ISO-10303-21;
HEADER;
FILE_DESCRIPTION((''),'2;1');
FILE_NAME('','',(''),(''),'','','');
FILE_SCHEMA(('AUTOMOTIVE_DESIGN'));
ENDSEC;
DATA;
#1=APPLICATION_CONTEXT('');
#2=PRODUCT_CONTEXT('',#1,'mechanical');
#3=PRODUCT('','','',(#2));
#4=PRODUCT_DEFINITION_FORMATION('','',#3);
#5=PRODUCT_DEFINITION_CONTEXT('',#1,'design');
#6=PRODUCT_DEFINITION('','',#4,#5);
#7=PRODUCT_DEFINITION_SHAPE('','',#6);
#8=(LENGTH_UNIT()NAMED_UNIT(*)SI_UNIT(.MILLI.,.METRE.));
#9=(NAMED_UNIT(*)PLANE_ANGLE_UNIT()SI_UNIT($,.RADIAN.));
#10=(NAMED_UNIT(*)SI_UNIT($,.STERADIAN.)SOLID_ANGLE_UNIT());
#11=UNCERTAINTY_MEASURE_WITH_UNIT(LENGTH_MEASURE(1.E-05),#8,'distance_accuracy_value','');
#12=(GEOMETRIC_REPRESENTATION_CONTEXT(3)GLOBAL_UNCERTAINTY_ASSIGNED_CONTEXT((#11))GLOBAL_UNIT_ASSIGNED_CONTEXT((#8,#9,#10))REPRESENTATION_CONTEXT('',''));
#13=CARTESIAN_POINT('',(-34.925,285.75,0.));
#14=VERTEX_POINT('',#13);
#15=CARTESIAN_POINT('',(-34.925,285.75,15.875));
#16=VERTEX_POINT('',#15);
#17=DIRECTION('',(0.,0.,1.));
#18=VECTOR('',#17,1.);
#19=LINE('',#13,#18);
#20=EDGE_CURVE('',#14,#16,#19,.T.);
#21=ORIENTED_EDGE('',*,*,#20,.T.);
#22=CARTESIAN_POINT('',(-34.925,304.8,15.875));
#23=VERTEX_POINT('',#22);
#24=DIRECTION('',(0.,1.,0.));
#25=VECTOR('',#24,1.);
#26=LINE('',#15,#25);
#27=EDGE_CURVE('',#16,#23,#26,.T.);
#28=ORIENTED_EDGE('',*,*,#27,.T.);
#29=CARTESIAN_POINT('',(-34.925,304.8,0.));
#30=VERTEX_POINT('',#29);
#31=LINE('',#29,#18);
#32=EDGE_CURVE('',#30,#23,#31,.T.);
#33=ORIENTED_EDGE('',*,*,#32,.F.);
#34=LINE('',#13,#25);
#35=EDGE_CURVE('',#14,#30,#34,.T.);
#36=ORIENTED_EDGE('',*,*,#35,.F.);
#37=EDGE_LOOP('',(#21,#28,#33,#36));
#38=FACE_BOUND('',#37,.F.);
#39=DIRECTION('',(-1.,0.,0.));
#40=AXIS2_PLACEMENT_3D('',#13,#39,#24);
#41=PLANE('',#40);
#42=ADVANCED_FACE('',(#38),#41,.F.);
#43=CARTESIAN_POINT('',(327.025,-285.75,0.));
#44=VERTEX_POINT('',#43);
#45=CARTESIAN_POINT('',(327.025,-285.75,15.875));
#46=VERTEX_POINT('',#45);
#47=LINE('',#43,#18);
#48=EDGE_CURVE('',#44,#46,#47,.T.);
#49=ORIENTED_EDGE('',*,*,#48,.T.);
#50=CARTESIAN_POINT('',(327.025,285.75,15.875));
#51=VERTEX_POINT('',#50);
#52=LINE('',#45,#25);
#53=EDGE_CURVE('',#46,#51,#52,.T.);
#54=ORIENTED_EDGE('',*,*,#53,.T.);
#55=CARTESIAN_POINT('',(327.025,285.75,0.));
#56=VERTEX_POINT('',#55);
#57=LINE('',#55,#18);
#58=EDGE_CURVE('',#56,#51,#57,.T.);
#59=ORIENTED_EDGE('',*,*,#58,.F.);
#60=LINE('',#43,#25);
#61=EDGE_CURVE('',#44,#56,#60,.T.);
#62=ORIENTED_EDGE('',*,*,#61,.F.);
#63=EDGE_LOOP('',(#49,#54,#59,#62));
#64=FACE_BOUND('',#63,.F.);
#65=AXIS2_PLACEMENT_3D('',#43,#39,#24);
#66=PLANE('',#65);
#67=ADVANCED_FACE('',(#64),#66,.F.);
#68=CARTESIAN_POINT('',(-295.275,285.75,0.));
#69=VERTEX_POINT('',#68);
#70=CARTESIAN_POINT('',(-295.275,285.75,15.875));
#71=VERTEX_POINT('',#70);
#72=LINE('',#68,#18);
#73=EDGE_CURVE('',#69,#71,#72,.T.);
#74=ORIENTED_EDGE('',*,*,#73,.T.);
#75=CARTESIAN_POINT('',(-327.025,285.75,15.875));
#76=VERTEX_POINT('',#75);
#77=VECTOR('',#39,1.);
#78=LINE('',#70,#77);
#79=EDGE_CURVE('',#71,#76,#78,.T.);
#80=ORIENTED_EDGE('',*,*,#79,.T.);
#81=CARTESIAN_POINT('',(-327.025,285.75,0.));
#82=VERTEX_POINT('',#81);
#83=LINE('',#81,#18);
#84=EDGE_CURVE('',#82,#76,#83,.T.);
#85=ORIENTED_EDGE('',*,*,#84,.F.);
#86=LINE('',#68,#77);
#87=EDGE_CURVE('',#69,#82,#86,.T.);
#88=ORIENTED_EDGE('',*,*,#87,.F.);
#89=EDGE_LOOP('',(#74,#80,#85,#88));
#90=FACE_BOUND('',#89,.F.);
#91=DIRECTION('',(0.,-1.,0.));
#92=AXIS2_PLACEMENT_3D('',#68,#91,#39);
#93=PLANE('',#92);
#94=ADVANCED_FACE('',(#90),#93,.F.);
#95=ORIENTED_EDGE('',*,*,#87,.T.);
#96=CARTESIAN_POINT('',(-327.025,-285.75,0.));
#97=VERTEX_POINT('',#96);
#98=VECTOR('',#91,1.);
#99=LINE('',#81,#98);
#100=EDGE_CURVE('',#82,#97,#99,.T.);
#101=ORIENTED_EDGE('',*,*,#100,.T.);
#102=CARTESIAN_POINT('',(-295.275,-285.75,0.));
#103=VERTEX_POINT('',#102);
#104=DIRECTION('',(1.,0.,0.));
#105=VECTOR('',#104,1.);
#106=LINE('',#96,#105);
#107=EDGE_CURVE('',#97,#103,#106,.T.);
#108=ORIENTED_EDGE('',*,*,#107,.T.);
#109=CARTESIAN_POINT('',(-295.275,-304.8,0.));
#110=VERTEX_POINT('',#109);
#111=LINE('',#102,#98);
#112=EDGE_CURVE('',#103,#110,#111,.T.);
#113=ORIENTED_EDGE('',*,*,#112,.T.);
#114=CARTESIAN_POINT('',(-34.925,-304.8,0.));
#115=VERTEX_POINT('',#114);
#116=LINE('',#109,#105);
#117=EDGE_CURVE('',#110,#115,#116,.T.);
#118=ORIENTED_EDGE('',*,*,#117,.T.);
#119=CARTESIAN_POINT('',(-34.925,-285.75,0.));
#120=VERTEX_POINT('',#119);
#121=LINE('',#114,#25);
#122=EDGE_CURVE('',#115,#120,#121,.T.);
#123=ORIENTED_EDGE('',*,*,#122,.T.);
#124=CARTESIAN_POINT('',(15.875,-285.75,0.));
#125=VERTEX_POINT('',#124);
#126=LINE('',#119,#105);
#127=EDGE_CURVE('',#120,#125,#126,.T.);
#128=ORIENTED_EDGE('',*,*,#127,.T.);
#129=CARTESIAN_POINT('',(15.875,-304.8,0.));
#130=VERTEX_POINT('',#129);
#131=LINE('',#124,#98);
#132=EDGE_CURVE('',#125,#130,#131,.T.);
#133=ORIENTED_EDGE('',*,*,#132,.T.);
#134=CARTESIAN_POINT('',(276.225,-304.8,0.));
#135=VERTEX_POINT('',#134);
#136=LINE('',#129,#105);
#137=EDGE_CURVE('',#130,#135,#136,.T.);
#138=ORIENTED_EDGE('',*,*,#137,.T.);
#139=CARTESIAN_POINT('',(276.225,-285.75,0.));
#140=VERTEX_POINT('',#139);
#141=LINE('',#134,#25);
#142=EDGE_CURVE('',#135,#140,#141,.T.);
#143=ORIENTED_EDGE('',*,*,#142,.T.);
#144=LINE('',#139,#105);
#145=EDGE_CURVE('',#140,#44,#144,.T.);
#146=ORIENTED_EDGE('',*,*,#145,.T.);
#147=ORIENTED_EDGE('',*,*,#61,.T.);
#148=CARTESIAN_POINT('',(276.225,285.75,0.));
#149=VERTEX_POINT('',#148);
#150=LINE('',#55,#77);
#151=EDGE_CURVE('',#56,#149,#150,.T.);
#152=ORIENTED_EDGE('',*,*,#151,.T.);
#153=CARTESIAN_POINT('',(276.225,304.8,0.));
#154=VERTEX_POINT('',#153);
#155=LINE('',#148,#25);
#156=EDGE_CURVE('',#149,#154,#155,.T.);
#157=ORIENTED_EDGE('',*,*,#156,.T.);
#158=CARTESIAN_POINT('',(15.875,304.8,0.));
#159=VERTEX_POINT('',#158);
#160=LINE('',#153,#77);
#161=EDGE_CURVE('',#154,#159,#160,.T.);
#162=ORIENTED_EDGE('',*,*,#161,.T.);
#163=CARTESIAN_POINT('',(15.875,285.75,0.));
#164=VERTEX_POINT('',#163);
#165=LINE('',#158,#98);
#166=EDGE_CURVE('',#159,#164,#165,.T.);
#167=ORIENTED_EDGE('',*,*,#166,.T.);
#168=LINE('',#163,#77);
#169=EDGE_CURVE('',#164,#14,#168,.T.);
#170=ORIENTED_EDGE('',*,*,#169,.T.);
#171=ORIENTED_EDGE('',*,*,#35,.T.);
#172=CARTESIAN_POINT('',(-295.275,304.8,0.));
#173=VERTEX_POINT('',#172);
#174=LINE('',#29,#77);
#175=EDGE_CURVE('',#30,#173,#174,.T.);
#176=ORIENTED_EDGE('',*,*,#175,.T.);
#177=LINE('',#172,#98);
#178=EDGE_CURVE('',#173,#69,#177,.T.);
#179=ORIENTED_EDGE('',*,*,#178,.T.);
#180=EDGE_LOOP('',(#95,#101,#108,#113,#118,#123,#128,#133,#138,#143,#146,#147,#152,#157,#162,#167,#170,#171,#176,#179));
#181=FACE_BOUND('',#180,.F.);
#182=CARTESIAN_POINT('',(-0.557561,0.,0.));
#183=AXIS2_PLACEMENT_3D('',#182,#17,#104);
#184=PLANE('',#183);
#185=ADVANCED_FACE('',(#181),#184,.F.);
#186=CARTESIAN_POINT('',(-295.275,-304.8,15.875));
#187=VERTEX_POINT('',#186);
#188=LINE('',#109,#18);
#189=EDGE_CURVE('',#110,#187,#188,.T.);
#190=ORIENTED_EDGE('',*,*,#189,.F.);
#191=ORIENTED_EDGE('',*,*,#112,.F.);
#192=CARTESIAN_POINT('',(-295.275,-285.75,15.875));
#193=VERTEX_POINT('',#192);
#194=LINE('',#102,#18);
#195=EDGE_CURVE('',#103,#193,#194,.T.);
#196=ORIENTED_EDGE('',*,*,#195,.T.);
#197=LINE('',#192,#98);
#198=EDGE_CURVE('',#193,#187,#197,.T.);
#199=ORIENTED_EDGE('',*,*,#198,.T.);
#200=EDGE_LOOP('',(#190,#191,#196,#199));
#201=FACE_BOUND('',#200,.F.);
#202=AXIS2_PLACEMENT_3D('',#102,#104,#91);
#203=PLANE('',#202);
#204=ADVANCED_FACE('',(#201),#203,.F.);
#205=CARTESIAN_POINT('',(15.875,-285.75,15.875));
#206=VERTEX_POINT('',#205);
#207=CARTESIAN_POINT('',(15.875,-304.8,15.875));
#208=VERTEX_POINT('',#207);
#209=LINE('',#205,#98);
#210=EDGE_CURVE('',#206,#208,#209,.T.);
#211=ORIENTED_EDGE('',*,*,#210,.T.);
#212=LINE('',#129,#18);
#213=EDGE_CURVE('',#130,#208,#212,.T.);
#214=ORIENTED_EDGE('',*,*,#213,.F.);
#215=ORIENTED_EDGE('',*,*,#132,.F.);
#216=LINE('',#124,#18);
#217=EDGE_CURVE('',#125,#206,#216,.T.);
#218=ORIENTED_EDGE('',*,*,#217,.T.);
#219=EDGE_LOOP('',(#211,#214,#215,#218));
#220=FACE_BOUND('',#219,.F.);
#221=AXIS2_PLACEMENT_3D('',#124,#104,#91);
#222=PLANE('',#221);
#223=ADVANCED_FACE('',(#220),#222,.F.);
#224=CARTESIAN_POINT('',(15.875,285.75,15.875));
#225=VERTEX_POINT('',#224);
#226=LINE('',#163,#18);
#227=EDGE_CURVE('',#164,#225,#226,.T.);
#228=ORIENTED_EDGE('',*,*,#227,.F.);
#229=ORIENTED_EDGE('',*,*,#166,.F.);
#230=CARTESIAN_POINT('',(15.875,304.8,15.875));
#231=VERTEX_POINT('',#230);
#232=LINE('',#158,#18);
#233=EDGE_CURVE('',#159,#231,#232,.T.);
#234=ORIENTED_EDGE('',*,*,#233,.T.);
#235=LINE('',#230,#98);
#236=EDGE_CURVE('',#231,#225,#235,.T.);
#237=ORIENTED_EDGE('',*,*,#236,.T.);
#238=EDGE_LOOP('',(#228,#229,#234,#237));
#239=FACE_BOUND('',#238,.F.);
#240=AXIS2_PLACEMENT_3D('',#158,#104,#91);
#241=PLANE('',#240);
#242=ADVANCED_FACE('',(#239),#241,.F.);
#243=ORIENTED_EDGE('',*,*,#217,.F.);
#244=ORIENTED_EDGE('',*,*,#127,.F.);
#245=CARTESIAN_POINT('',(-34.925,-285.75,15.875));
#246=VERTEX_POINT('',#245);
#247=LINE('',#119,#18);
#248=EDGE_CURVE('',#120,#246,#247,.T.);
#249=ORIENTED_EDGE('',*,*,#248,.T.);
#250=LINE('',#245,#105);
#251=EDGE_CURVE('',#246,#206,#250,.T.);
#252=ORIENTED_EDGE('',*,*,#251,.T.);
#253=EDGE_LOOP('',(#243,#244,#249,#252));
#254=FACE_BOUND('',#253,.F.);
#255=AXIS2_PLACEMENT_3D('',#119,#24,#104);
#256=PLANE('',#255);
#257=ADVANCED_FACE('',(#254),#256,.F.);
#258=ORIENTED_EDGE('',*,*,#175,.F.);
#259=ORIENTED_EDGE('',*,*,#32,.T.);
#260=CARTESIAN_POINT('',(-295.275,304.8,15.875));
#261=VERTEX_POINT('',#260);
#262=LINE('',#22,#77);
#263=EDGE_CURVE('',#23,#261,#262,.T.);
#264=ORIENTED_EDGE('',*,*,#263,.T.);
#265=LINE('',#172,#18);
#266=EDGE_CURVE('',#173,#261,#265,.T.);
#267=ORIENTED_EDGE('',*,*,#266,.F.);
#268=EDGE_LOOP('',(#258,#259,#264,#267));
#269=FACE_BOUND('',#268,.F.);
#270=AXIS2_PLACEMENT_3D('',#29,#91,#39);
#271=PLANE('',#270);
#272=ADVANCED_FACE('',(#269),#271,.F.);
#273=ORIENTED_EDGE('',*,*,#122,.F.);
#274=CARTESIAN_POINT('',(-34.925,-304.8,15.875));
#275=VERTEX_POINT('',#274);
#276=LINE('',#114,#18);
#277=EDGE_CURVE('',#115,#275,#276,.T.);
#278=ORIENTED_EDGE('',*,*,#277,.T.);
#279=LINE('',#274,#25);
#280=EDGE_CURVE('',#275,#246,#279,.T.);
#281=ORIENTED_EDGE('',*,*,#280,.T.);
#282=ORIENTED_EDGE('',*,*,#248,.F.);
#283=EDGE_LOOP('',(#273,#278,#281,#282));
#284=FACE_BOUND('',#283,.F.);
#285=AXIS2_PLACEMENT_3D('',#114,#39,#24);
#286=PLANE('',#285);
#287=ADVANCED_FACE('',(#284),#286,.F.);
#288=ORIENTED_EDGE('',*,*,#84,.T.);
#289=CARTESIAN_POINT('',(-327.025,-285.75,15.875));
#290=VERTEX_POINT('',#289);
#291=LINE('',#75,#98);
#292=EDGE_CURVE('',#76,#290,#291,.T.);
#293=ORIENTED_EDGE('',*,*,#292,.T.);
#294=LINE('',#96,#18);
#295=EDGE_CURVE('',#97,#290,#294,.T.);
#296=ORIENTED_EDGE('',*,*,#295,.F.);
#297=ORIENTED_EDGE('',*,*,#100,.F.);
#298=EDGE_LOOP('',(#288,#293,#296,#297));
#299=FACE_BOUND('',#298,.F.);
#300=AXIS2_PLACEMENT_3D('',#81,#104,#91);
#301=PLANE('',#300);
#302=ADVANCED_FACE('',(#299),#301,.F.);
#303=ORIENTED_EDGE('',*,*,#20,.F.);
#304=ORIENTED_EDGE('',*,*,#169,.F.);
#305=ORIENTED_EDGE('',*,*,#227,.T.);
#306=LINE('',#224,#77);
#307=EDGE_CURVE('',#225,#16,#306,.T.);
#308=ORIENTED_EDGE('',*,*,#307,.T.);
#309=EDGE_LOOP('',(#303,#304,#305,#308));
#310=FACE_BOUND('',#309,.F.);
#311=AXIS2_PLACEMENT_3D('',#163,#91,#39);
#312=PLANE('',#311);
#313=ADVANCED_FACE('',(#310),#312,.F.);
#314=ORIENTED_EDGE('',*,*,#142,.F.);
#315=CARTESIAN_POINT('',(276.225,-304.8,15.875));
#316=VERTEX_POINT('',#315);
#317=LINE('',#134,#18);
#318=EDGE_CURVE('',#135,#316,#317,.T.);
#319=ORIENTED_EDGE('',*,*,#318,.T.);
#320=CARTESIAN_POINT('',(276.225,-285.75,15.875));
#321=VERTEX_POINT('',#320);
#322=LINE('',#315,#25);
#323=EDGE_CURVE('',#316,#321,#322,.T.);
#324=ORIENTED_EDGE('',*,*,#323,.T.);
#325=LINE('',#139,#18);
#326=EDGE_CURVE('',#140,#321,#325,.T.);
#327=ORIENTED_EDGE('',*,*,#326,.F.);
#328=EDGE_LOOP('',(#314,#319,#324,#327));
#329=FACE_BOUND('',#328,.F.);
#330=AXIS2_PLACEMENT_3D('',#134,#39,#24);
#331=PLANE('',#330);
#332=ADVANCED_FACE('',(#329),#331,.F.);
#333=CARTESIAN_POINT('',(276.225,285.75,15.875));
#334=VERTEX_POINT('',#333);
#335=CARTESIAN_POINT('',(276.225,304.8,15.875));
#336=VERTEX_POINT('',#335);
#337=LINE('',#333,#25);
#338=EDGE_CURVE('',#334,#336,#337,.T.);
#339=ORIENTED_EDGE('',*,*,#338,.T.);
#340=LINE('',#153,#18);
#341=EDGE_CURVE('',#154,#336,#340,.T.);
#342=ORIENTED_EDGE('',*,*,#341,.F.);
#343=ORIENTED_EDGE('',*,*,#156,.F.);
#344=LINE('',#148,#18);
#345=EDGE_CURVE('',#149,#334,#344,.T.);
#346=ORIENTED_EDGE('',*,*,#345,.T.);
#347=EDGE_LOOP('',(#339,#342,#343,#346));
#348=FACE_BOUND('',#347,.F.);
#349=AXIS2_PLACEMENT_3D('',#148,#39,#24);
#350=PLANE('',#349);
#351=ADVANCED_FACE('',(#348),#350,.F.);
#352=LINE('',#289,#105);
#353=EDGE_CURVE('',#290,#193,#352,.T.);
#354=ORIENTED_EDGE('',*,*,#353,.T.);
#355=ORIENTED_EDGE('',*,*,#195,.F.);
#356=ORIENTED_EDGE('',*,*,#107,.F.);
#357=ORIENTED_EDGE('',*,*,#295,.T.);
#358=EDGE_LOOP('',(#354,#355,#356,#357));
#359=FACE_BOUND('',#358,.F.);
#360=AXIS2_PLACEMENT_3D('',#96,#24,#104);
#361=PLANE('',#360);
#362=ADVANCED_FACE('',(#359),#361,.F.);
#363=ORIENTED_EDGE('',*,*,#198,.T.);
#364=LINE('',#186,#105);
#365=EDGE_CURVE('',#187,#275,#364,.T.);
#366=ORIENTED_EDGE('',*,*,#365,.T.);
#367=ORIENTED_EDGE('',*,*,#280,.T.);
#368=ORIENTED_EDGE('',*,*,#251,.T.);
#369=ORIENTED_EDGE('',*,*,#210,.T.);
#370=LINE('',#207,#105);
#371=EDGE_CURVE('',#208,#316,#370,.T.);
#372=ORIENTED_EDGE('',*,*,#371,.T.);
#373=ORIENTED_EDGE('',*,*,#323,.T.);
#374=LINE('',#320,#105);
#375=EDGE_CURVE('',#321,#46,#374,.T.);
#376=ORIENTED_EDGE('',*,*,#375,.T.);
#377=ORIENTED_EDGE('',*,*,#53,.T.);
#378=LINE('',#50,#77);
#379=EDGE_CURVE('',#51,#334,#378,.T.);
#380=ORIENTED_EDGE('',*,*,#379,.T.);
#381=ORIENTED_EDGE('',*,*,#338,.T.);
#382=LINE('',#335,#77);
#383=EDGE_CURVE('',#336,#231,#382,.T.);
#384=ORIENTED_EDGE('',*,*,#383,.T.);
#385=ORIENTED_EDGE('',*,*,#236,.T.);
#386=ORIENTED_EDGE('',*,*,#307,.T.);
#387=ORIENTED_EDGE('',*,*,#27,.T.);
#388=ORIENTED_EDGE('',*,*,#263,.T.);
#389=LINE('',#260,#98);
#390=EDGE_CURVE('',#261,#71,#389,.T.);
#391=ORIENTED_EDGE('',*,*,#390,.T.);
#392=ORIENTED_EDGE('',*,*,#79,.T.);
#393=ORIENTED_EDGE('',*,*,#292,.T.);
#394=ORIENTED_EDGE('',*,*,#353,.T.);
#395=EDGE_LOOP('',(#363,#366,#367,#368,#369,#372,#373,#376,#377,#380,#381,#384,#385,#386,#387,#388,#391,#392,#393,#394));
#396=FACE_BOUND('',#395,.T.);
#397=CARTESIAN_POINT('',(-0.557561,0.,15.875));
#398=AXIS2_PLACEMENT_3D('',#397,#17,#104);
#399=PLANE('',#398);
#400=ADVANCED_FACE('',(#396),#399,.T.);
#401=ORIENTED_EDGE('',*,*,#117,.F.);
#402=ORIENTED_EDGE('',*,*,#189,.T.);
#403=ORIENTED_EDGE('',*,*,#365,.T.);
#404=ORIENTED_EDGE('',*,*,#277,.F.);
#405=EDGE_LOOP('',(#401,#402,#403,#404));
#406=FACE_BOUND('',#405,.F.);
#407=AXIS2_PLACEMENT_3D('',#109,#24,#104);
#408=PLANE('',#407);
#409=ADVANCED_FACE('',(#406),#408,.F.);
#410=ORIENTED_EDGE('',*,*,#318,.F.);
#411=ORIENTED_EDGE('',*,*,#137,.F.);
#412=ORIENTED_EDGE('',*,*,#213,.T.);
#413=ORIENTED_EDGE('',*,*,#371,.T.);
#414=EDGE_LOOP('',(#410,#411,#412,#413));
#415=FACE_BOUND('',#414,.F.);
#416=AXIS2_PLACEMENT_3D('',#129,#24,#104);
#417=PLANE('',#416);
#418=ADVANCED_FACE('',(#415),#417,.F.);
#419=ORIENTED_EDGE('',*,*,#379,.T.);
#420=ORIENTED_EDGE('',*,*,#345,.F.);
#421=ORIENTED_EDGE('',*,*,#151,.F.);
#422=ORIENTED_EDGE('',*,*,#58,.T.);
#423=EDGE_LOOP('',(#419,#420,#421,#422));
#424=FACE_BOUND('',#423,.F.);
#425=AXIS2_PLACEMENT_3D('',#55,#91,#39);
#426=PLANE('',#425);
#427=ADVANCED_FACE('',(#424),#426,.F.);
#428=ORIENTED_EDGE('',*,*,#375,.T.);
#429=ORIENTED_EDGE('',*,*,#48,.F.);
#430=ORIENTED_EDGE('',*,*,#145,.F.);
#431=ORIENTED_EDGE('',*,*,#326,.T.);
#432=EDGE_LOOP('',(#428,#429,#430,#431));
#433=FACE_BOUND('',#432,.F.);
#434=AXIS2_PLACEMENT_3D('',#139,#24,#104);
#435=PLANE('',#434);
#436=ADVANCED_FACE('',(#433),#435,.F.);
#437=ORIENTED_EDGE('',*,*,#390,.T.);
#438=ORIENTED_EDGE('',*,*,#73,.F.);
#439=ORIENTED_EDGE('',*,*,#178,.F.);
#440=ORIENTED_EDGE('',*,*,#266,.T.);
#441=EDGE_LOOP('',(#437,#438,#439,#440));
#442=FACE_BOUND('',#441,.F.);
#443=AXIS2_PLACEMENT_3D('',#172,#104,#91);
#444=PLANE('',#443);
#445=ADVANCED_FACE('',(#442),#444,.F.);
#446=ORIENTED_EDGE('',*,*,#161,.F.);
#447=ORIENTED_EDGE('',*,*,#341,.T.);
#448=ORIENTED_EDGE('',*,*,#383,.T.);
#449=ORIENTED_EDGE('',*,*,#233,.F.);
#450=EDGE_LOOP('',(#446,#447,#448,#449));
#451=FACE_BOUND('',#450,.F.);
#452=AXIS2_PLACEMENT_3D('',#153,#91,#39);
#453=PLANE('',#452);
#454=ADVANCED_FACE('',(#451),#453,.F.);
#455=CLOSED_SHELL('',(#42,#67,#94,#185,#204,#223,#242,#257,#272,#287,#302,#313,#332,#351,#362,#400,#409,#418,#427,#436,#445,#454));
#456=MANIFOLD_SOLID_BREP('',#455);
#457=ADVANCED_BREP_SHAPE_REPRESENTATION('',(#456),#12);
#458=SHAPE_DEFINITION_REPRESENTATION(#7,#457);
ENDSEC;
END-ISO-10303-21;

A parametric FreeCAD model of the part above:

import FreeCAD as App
import Part
import Sketcher
Q = App.Units.Quantity


def add_polygon(sketch, points):
    """Adds a closed chain of lines whose ends are joined by coincident constraints."""
    first, n = sketch.GeometryCount, len(points)
    for a, b in zip(points, points[1:] + points[:1]):
        sketch.addGeometry(Part.LineSegment(App.Vector(*a, 0), App.Vector(*b, 0)), False)
    for i in range(n):
        sketch.addConstraint(Sketcher.Constraint("Coincident", first + i, 2, first + (i + 1) % n, 1))

doc = App.newDocument("Part")
body = doc.addObject("PartDesign::Body", "Body")

# Sketch on XY plane
sketch1 = body.newObject("Sketcher::SketchObject", "Sketch")
sketch1.AttachmentSupport = (doc.getObject("XY_Plane"), [""])
sketch1.MapMode = "FlatFace"
add_polygon(sketch1, [(-295, -286), (-295, -305), (-35, -305), (-35, -286), (16, -286), (16, -305), (276, -305), (276, -286), (327, -286), (327, 286), (276, 286), (276, 305), (16, 305), (16, 286), (-35, 286), (-35, 305), (-295, 305), (-295, 286), (-327, 286), (-327, -286)])  # lines 0-19
sketch1.addConstraint([
    Sketcher.Constraint("Vertical", 0),
    Sketcher.Constraint("Horizontal", 1),
    Sketcher.Constraint("Vertical", 2),
    Sketcher.Constraint("Horizontal", 3),
    Sketcher.Constraint("Vertical", 4),
    Sketcher.Constraint("Horizontal", 5),
    Sketcher.Constraint("Vertical", 6),
    Sketcher.Constraint("Horizontal", 7),
    Sketcher.Constraint("Vertical", 8),
    Sketcher.Constraint("Horizontal", 9),
    Sketcher.Constraint("Vertical", 10),
    Sketcher.Constraint("Horizontal", 11),
    Sketcher.Constraint("Vertical", 12),
    Sketcher.Constraint("Horizontal", 13),
    Sketcher.Constraint("Vertical", 14),
    Sketcher.Constraint("Horizontal", 15),
    Sketcher.Constraint("Vertical", 16),
    Sketcher.Constraint("Horizontal", 17),
    Sketcher.Constraint("Vertical", 18),
    Sketcher.Constraint("Horizontal", 19),
    Sketcher.Constraint("Symmetric", 7, 2, 17, 2, -1, 1),
    Sketcher.Constraint("Symmetric", 6, 2, 9, 2, -1),
    Sketcher.Constraint("Symmetric", 4, 2, 11, 2, -1),
    Sketcher.Constraint("Symmetric", 2, 2, 13, 2, -1),
    Sketcher.Constraint("Symmetric", 0, 2, 15, 2, -1),
    Sketcher.Constraint("Horizontal", 1, 2, 4, 2),
    Sketcher.Constraint("Horizontal", 3, 2, 6, 2),
    Sketcher.Constraint("Horizontal", 7, 2, 18, 2),
    Sketcher.Constraint("Equal", 1, 5),
    Sketcher.Constraint("Equal", 3, 7),
    Sketcher.Constraint("DistanceX", 3, 1, 3, 2, Q("2 in")),
    Sketcher.Constraint("DistanceY", 8, 1, 8, 2, Q("22.5 in")),
    Sketcher.Constraint("DistanceY", 0, 2, -1, 1, Q("12 in")),
    Sketcher.Constraint("DistanceX", 1, 1, 1, 2, Q("10.25 in")),
    Sketcher.Constraint("DistanceX", 17, 2, 17, 1, Q("1.25 in")),
])
pad1 = body.newObject("PartDesign::Pad", "Pad")
pad1.Profile = sketch1
pad1.Length = Q("0.625 in")

doc.recompute()
